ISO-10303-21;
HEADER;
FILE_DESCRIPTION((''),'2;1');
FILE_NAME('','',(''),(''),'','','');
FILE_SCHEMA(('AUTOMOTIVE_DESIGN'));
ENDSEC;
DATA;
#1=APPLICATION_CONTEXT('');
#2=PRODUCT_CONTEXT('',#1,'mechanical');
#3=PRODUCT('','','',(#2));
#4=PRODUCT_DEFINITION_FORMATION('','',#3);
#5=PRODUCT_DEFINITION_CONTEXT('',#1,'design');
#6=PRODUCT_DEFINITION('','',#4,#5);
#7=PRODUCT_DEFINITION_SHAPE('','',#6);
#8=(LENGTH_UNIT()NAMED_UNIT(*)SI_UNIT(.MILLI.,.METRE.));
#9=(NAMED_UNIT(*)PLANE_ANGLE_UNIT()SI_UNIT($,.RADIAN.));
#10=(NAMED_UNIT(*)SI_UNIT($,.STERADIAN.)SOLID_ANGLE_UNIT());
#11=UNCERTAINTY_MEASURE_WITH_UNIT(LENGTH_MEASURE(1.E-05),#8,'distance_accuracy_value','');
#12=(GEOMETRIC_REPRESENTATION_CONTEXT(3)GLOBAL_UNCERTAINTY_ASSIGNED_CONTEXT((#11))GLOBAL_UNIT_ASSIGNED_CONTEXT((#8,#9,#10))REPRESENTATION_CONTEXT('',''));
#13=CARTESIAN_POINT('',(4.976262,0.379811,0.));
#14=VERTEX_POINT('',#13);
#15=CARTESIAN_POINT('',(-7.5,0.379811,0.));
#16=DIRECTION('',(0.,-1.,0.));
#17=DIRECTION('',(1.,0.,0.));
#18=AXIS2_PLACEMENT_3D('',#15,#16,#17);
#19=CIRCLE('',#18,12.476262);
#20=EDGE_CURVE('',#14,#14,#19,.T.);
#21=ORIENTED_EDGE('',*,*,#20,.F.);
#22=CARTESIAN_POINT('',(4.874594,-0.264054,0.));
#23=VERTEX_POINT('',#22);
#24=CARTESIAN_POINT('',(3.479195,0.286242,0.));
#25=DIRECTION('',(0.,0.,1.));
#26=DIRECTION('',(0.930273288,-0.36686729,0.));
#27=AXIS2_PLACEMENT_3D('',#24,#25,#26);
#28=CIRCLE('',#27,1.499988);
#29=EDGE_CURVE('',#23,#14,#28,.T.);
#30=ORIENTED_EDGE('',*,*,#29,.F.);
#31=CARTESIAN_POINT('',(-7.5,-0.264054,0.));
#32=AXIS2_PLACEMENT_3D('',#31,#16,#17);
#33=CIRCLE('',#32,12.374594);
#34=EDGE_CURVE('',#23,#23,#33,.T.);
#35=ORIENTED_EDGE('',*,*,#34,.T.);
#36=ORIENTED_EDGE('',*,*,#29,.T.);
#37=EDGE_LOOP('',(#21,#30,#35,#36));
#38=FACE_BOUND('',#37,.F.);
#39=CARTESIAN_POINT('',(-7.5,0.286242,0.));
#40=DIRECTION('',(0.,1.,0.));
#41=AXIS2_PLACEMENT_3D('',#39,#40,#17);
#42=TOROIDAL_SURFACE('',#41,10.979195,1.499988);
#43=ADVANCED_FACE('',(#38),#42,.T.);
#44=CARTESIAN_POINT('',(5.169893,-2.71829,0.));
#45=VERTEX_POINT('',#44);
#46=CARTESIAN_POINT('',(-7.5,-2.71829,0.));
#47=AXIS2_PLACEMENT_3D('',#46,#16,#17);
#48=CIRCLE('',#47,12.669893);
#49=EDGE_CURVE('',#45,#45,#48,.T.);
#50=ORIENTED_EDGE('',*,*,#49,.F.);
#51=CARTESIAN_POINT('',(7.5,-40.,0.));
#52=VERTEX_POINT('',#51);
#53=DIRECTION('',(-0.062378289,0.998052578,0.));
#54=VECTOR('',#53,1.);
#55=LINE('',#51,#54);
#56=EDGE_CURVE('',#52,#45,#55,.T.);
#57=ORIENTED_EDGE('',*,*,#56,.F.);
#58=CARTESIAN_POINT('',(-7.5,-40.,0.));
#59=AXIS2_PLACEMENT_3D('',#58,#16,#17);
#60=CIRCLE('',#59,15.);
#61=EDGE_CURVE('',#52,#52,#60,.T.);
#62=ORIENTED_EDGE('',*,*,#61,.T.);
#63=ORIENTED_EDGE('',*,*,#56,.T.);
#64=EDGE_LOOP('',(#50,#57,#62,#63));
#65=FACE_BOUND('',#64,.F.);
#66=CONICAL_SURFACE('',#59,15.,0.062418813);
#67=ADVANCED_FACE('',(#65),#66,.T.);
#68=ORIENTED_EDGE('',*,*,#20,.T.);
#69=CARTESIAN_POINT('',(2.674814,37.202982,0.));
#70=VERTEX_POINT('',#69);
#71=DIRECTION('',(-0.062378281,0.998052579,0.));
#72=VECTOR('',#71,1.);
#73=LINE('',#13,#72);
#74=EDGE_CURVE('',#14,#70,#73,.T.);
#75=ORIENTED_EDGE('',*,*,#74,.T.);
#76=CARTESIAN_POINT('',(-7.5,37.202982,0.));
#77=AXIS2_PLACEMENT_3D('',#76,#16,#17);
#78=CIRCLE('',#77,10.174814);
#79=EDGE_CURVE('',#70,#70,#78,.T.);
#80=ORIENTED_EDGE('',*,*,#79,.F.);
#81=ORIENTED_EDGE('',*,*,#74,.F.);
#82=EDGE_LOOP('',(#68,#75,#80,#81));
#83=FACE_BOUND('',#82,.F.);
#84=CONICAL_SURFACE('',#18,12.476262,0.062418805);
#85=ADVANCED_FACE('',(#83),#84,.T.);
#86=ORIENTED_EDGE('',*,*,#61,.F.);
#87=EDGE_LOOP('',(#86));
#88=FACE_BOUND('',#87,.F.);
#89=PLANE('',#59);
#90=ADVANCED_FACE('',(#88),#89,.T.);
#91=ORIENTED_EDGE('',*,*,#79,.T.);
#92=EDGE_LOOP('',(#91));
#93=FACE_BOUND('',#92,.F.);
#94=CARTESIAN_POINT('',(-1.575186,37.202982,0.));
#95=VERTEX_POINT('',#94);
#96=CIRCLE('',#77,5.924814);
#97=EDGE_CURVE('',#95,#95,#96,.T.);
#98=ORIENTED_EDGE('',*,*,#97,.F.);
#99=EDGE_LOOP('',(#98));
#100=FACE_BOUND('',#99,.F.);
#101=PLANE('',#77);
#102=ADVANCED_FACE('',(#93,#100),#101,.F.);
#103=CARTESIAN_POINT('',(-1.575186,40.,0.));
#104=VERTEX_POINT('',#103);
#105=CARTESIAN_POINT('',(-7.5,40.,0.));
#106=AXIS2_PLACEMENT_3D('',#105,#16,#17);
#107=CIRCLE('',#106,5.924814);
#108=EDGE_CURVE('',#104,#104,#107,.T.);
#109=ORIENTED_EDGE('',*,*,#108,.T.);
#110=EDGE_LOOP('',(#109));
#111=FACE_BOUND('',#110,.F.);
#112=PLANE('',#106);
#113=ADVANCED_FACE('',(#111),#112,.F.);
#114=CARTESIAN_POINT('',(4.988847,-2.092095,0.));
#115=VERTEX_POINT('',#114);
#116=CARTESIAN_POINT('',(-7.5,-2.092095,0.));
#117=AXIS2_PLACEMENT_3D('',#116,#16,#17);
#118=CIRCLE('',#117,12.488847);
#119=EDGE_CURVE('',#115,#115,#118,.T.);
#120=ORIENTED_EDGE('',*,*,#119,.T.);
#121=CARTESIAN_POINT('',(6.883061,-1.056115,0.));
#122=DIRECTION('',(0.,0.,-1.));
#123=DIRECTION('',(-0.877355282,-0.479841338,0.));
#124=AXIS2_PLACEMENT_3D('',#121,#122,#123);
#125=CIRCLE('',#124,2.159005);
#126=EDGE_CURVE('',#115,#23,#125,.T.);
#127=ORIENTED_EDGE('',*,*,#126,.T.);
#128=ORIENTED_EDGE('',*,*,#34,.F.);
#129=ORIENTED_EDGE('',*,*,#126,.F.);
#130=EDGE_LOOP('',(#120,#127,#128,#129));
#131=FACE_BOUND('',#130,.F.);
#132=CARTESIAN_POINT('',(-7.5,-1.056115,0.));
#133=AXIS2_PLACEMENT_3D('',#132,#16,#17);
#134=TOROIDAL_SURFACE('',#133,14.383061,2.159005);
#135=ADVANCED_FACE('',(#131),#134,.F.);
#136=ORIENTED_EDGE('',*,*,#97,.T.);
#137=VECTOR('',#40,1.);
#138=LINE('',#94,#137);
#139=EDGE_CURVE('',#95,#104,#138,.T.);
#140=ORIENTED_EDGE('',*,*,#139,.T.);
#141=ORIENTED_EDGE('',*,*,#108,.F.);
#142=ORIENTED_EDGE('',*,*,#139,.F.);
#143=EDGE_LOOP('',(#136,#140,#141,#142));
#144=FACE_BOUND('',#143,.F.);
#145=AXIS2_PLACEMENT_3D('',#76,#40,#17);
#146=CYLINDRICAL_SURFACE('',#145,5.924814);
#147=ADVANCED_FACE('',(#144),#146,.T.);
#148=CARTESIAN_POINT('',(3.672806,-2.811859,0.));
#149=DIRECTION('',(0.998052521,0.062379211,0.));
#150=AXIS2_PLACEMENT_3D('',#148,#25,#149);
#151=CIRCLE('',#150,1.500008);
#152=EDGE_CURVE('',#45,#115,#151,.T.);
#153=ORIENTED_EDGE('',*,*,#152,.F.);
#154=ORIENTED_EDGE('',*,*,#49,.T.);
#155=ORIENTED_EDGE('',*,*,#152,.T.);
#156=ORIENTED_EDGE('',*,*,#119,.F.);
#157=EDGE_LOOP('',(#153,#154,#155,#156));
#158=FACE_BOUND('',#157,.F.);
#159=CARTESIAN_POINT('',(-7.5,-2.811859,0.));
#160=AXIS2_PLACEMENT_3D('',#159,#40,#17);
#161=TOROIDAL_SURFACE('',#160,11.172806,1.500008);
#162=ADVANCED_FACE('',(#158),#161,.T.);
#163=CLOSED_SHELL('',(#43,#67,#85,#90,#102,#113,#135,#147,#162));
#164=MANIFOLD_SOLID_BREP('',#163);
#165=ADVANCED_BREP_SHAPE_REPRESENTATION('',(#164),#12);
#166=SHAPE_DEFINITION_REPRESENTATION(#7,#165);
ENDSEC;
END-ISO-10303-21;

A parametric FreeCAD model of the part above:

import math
import FreeCAD as App
import Part
import Sketcher

V = App.Vector

doc = App.newDocument("Part")
body = doc.addObject("PartDesign::Body", "Body")

# Sketch on XY plane
sketch1 = doc.addObject("Sketcher::SketchObject", "Sketch")
body.addObject(sketch1)
sketch1.AttachmentSupport = (doc.XY_Plane, [""])
sketch1.MapMode = "FlatFace"
sketch1.addGeometry(Part.LineSegment(V(-1.6, 37.2, 0), V(-1.6, 40, 0)), False)
sketch1.addGeometry(Part.LineSegment(V(-1.6, 40, 0), V(-7.5, 40, 0)), False)
sketch1.addGeometry(Part.LineSegment(V(-7.5, 40, 0), V(-7.5, -40, 0)), False)
sketch1.addGeometry(Part.LineSegment(V(-7.5, -40, 0), V(7.5, -40, 0)), False)
sketch1.addGeometry(Part.LineSegment(V(7.5, -40, 0), V(5.2, -2.7, 0)), False)
sketch1.addGeometry(Part.ArcOfCircle(Part.Circle(V(3.7, -2.8, 0), V(0, 0, 1), 1.5), math.radians(4), math.radians(29)), False)
sketch1.addGeometry(Part.ArcOfCircle(Part.Circle(V(6.9, -1.1, 0), V(0, 0, 1), 2.2), math.radians(158), math.radians(209)), False)
sketch1.addGeometry(Part.ArcOfCircle(Part.Circle(V(3.5, 0.3, 0), V(0, 0, 1), 1.5), math.radians(-22), math.radians(4)), False)
sketch1.addGeometry(Part.LineSegment(V(5, 0.4, 0), V(2.7, 37.2, 0)), False)
sketch1.addGeometry(Part.LineSegment(V(2.7, 37.2, 0), V(-1.6, 37.2, 0)), False)
sketch1.addGeometry(Part.LineSegment(V(-7.5, 40, 0), V(-7.5, -40, 0)), True)  # axis
sketch1.addConstraint(Sketcher.Constraint("Coincident", 0, 2, 1, 1))
sketch1.addConstraint(Sketcher.Constraint("Coincident", 1, 2, 2, 1))
sketch1.addConstraint(Sketcher.Constraint("Coincident", 2, 2, 3, 1))
sketch1.addConstraint(Sketcher.Constraint("Coincident", 3, 2, 4, 1))
sketch1.addConstraint(Sketcher.Constraint("Tangent", 4, 2, 5, 1))
sketch1.addConstraint(Sketcher.Constraint("Tangent", 5, 2, 6, 2))
sketch1.addConstraint(Sketcher.Constraint("Coincident", 6, 1, 7, 1))
sketch1.addConstraint(Sketcher.Constraint("Tangent", 7, 2, 8, 1))
sketch1.addConstraint(Sketcher.Constraint("Coincident", 8, 2, 9, 1))
sketch1.addConstraint(Sketcher.Constraint("Coincident", 9, 2, 0, 1))
sketch1.addConstraint(Sketcher.Constraint("Vertical", 0))
sketch1.addConstraint(Sketcher.Constraint("Horizontal", 1))
sketch1.addConstraint(Sketcher.Constraint("Vertical", 2))
sketch1.addConstraint(Sketcher.Constraint("Horizontal", 3))
sketch1.addConstraint(Sketcher.Constraint("Horizontal", 9))
sketch1.addConstraint(Sketcher.Constraint("Vertical", 10))
sketch1.addConstraint(Sketcher.Constraint("Coincident", 10, 1, 1, 2))
sketch1.addConstraint(Sketcher.Constraint("Symmetric", 1, 2, 3, 2, -1, 1))
sketch1.addConstraint(Sketcher.Constraint("Parallel", 4, 8))
sketch1.addConstraint(Sketcher.Constraint("Horizontal", 3, 2, 10, 2))
sketch1.addConstraint(Sketcher.Constraint("DistanceX", 3, 1, 3, 2, 15.0))
sketch1.addConstraint(Sketcher.Constraint("DistanceY", 2, 2, 2, 1, 80.0))
sketch1.addConstraint(Sketcher.Constraint("DistanceX", 9, 2, 9, 1, 4.25))
sketch1.addConstraint(Sketcher.Constraint("Radius", 5, 1.500008))
sketch1.addConstraint(Sketcher.Constraint("Radius", 6, 2.159005))
sketch1.addConstraint(Sketcher.Constraint("Radius", 7, 1.499988))
sketch1.addConstraint(Sketcher.Constraint("DistanceY", 0, 1, 0, 2, 2.797018))
sketch1.addConstraint(Sketcher.Constraint("DistanceY", 5, 3, 7, 3, 3.098102))
sketch1.addConstraint(Sketcher.Constraint("DistanceX", 7, 3, 6, 1, 1.395399))
sketch1.addConstraint(Sketcher.Constraint("DistanceX", 6, 1, 4, 2, 0.295299))
sketch1.addConstraint(Sketcher.Constraint("Distance", 8, 36.895021))
sketch1.addConstraint(Sketcher.Constraint("DistanceX", 1, 2, 1, 1, 5.924814))
revolution = doc.addObject("PartDesign::Revolution", "Revolution")
body.addObject(revolution)
revolution.Profile = sketch1
revolution.ReferenceAxis = (sketch1, ["Axis0"])
revolution.Angle = 360

doc.recompute()
